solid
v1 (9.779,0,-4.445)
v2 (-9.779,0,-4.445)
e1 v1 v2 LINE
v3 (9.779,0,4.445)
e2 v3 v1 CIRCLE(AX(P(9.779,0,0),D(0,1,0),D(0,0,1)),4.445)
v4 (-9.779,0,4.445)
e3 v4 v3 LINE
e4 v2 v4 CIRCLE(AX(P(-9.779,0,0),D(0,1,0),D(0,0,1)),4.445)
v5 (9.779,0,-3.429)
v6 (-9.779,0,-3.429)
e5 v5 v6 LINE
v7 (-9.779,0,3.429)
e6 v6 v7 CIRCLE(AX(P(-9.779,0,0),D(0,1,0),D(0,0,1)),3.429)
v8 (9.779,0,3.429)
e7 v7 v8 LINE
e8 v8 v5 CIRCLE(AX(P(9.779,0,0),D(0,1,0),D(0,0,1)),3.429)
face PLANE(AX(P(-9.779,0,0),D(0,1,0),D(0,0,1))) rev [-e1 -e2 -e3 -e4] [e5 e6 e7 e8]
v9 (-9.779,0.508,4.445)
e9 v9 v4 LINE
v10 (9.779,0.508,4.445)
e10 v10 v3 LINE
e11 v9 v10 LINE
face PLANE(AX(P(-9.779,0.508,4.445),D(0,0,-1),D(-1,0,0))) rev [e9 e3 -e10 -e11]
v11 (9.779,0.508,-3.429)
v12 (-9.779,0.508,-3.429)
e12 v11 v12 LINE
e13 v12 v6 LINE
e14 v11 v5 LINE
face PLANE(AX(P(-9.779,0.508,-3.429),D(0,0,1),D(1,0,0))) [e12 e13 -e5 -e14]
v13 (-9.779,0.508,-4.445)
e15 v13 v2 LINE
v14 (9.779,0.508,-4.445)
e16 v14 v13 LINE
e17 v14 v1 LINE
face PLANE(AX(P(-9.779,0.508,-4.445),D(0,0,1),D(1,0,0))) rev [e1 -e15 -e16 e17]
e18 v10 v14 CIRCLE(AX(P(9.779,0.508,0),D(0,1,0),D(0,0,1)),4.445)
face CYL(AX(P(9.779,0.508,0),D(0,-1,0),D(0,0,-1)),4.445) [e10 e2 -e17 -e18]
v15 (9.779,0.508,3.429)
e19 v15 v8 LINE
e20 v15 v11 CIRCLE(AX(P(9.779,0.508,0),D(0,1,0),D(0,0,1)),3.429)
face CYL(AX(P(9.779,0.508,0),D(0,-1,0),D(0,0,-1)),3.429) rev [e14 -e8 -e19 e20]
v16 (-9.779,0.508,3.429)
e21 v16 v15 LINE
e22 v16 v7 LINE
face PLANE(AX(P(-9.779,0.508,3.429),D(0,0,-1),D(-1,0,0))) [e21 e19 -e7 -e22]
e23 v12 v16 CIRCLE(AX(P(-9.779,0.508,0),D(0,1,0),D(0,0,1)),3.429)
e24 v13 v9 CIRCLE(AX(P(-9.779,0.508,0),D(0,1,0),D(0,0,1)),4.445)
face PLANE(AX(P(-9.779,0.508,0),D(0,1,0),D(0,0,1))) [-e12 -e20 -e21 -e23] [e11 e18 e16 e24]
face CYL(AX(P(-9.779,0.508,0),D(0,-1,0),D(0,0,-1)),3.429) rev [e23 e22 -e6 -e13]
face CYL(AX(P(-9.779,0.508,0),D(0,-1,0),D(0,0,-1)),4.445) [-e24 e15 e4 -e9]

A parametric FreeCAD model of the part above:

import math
import FreeCAD as App
import Part
import Sketcher
Q = App.Units.Quantity

doc = App.newDocument("Part")
body = doc.addObject("PartDesign::Body", "Body")

# Sketch on XZ plane
sketch1 = body.newObject("Sketcher::SketchObject", "Sketch")
sketch1.AttachmentSupport = (doc.getObject("XZ_Plane"), [""])
sketch1.MapMode = "FlatFace"
sketch1.addGeometry(Part.LineSegment(App.Vector(9.8, -4.4, 0), App.Vector(-9.8, -4.4, 0)), False)
sketch1.addGeometry(Part.ArcOfCircle(Part.Circle(App.Vector(-9.8, 0, 0), App.Vector(0, 0, 1), 4.4), math.radians(90), math.radians(270)), False)
sketch1.addGeometry(Part.LineSegment(App.Vector(-9.8, 4.4, 0), App.Vector(9.8, 4.4, 0)), False)
sketch1.addGeometry(Part.ArcOfCircle(Part.Circle(App.Vector(9.8, 0, 0), App.Vector(0, 0, 1), 4.4), math.radians(-90), math.radians(90)), False)
sketch1.addGeometry(Part.LineSegment(App.Vector(-9.8, -3.4, 0), App.Vector(9.8, -3.4, 0)), False)
sketch1.addGeometry(Part.ArcOfCircle(Part.Circle(App.Vector(9.8, 0, 0), App.Vector(0, 0, 1), 3.4), math.radians(-90), math.radians(90)), False)
sketch1.addGeometry(Part.LineSegment(App.Vector(9.8, 3.4, 0), App.Vector(-9.8, 3.4, 0)), False)
sketch1.addGeometry(Part.ArcOfCircle(Part.Circle(App.Vector(-9.8, 0, 0), App.Vector(0, 0, 1), 3.4), math.radians(90), math.radians(270)), False)
sketch1.addConstraint(Sketcher.Constraint("Tangent", 0, 2, 1, 2))
sketch1.addConstraint(Sketcher.Constraint("Tangent", 1, 1, 2, 1))
sketch1.addConstraint(Sketcher.Constraint("Tangent", 2, 2, 3, 2))
sketch1.addConstraint(Sketcher.Constraint("Tangent", 3, 1, 0, 1))
sketch1.addConstraint(Sketcher.Constraint("Tangent", 4, 2, 5, 1))
sketch1.addConstraint(Sketcher.Constraint("Tangent", 5, 2, 6, 1))
sketch1.addConstraint(Sketcher.Constraint("Tangent", 6, 2, 7, 1))
sketch1.addConstraint(Sketcher.Constraint("Tangent", 7, 2, 4, 1))
sketch1.addConstraint(Sketcher.Constraint("Horizontal", 0))
sketch1.addConstraint(Sketcher.Constraint("Horizontal", 2))
sketch1.addConstraint(Sketcher.Constraint("Horizontal", 4))
sketch1.addConstraint(Sketcher.Constraint("Horizontal", 6))
sketch1.addConstraint(Sketcher.Constraint("Coincident", 5, 3, 3, 3))
sketch1.addConstraint(Sketcher.Constraint("Symmetric", 1, 3, 3, 3, -1, 1))
sketch1.addConstraint(Sketcher.Constraint("Vertical", 7, 3, 0, 2))
sketch1.addConstraint(Sketcher.Constraint("Radius", 1, Q("0.175 in")))
sketch1.addConstraint(Sketcher.Constraint("Radius", 5, Q("0.135 in")))
sketch1.addConstraint(Sketcher.Constraint("DistanceX", 0, 2, 0, 1, Q("0.77 in")))
pad1 = body.newObject("PartDesign::Pad", "Pad")
pad1.Profile = sketch1
pad1.Length = Q("0.02 in")
pad1.Reversed = True

doc.recompute()
